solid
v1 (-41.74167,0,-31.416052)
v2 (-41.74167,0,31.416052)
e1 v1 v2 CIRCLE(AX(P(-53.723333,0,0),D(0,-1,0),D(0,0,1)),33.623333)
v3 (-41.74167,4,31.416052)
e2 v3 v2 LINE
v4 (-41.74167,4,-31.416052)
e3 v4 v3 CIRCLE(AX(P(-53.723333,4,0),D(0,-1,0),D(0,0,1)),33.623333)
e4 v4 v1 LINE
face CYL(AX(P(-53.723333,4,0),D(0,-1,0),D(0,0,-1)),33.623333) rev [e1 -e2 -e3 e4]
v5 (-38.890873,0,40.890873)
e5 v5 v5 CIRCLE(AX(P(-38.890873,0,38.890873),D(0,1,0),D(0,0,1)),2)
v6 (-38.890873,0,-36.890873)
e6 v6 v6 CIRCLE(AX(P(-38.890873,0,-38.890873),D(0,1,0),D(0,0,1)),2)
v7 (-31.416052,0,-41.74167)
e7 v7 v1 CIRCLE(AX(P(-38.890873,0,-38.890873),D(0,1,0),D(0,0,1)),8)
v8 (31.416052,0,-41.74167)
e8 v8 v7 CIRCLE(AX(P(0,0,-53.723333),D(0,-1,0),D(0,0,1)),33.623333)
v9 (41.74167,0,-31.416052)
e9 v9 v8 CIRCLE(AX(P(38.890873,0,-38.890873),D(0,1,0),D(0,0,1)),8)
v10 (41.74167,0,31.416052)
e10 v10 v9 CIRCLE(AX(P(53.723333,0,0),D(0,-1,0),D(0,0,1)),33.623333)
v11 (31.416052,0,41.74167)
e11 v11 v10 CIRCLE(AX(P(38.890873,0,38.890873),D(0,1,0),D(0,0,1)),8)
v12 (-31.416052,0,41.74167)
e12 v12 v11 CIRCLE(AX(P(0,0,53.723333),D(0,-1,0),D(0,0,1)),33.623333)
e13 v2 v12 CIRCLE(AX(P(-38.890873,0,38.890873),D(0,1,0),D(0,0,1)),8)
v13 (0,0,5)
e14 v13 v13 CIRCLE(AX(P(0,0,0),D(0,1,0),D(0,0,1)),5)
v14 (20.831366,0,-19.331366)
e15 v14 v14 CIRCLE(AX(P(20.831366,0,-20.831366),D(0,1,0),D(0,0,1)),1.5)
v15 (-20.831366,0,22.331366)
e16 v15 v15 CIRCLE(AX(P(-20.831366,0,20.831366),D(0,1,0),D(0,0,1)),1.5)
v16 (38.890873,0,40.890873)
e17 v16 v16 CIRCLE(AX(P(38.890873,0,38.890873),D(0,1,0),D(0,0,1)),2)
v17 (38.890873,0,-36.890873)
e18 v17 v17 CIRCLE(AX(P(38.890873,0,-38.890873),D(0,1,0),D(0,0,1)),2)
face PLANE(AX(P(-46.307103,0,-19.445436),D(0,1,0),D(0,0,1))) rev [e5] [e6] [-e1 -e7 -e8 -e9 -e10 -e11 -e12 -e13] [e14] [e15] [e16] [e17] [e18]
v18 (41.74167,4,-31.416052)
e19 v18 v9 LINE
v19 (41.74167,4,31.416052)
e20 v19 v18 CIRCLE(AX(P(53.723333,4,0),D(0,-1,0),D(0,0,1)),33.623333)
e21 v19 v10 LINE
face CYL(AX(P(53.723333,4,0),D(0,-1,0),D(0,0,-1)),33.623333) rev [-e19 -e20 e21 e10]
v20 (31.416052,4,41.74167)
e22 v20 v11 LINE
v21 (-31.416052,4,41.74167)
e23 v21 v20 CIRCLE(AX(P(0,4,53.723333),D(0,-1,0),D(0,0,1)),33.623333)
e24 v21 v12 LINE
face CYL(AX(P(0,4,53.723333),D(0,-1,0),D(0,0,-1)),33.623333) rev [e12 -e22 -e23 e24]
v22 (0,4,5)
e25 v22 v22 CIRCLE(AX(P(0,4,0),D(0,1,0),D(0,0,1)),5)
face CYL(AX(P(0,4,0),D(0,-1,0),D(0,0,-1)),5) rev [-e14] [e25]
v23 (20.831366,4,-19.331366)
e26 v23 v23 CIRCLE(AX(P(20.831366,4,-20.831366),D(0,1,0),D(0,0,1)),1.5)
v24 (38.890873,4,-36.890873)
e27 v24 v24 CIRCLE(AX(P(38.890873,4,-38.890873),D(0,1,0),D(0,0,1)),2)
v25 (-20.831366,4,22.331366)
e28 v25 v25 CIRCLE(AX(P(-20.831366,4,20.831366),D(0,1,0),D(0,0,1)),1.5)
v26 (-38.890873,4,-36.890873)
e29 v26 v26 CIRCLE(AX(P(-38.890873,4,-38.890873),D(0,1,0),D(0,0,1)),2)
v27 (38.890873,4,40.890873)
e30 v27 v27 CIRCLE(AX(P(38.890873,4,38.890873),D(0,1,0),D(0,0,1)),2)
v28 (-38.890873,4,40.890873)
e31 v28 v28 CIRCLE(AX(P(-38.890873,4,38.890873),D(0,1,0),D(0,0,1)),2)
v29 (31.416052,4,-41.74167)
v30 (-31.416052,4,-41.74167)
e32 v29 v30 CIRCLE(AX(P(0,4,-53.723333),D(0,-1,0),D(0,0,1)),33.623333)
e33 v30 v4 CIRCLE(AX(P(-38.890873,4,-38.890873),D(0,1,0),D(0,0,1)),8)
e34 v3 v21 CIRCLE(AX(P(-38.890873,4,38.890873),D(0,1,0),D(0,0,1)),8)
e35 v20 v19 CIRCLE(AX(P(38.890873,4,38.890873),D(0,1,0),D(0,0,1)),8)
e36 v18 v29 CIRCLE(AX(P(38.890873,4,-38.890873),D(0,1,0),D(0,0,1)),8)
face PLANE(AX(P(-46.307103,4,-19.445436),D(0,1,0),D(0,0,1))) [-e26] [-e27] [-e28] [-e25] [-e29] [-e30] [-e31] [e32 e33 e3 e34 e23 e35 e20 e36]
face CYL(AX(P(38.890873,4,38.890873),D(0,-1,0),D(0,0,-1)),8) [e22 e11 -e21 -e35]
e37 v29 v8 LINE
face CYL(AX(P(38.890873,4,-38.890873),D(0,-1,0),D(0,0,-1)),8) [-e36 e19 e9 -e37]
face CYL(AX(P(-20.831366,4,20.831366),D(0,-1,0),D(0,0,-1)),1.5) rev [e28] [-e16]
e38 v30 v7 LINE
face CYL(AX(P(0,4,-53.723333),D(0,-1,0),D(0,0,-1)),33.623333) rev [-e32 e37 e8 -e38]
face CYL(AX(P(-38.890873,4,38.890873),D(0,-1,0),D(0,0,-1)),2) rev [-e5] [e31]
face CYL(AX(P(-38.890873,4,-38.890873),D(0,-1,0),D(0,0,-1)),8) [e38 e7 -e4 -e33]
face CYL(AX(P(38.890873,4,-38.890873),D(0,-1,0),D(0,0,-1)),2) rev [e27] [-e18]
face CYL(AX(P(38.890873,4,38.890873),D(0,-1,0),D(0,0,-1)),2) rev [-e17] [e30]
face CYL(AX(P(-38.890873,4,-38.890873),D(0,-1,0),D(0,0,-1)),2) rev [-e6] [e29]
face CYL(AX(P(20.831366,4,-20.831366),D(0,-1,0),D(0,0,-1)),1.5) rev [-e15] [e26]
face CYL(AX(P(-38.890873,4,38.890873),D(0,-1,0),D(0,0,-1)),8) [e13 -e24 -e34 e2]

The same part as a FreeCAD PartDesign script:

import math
import FreeCAD as App
import Part
import Sketcher
Q = App.Units.Quantity

doc = App.newDocument("Part")
body = doc.addObject("PartDesign::Body", "Body")

# Sketch on XZ plane
sketch1 = doc.addObject("Sketcher::SketchObject", "Sketch")
body.addObject(sketch1)
sketch1.AttachmentSupport = (doc.XZ_Plane, [""])
sketch1.MapMode = "FlatFace"
sketch1.addGeometry(Part.ArcOfCircle(Part.Circle(App.Vector(0, -53.7, 0), App.Vector(0, 0, 1), 33.6), math.radians(21), math.radians(159)), False)
sketch1.addGeometry(Part.ArcOfCircle(Part.Circle(App.Vector(-38.9, -38.9, 0), App.Vector(0, 0, 1), 8), math.radians(111), math.radians(339)), False)
sketch1.addGeometry(Part.ArcOfCircle(Part.Circle(App.Vector(-53.7, 0, 0), App.Vector(0, 0, 1), 33.6), math.radians(-69), math.radians(69)), False)
sketch1.addGeometry(Part.ArcOfCircle(Part.Circle(App.Vector(-38.9, 38.9, 0), App.Vector(0, 0, 1), 8), math.radians(21), math.radians(249)), False)
sketch1.addGeometry(Part.ArcOfCircle(Part.Circle(App.Vector(0, 53.7, 0), App.Vector(0, 0, 1), 33.6), math.radians(-159), math.radians(-21)), False)
sketch1.addGeometry(Part.ArcOfCircle(Part.Circle(App.Vector(38.9, 38.9, 0), App.Vector(0, 0, 1), 8), math.radians(-69), math.radians(159)), False)
sketch1.addGeometry(Part.ArcOfCircle(Part.Circle(App.Vector(53.7, 0, 0), App.Vector(0, 0, 1), 33.6), math.radians(111), math.radians(249)), False)
sketch1.addGeometry(Part.ArcOfCircle(Part.Circle(App.Vector(38.9, -38.9, 0), App.Vector(0, 0, 1), 8), math.radians(-159), math.radians(69)), False)
sketch1.addGeometry(Part.Circle(App.Vector(38.9, 38.9, 0), App.Vector(0, 0, 1), 2), False)
sketch1.addGeometry(Part.Circle(App.Vector(-38.9, 38.9, 0), App.Vector(0, 0, 1), 2), False)
sketch1.addGeometry(Part.Circle(App.Vector(-20.8, 20.8, 0), App.Vector(0, 0, 1), 1.5), False)
sketch1.addGeometry(Part.Circle(App.Vector(20.8, -20.8, 0), App.Vector(0, 0, 1), 1.5), False)
sketch1.addGeometry(Part.Circle(App.Vector(38.9, -38.9, 0), App.Vector(0, 0, 1), 2), False)
sketch1.addGeometry(Part.Circle(App.Vector(0, 0, 0), App.Vector(0, 0, 1), 5), False)
sketch1.addGeometry(Part.Circle(App.Vector(-38.9, -38.9, 0), App.Vector(0, 0, 1), 2), False)
sketch1.addConstraint(Sketcher.Constraint("Tangent", 0, 2, 1, 2))
sketch1.addConstraint(Sketcher.Constraint("Tangent", 1, 1, 2, 1))
sketch1.addConstraint(Sketcher.Constraint("Tangent", 2, 2, 3, 2))
sketch1.addConstraint(Sketcher.Constraint("Tangent", 3, 1, 4, 1))
sketch1.addConstraint(Sketcher.Constraint("Tangent", 4, 2, 5, 2))
sketch1.addConstraint(Sketcher.Constraint("Tangent", 5, 1, 6, 1))
sketch1.addConstraint(Sketcher.Constraint("Tangent", 6, 2, 7, 2))
sketch1.addConstraint(Sketcher.Constraint("Tangent", 7, 1, 0, 1))
sketch1.addConstraint(Sketcher.Constraint("Coincident", 13, 3, -1, 1))
sketch1.addConstraint(Sketcher.Constraint("Coincident", 8, 3, 5, 3))
sketch1.addConstraint(Sketcher.Constraint("Coincident", 9, 3, 3, 3))
sketch1.addConstraint(Sketcher.Constraint("Coincident", 12, 3, 7, 3))
sketch1.addConstraint(Sketcher.Constraint("Coincident", 14, 3, 1, 3))
sketch1.addConstraint(Sketcher.Constraint("Equal", 0, 2))
sketch1.addConstraint(Sketcher.Constraint("Equal", 1, 3))
sketch1.addConstraint(Sketcher.Constraint("Equal", 2, 4))
sketch1.addConstraint(Sketcher.Constraint("Equal", 3, 5))
sketch1.addConstraint(Sketcher.Constraint("Equal", 4, 6))
sketch1.addConstraint(Sketcher.Constraint("Equal", 5, 7))
sketch1.addConstraint(Sketcher.Constraint("Equal", 8, 9))
sketch1.addConstraint(Sketcher.Constraint("Equal", 10, 11))
sketch1.addConstraint(Sketcher.Constraint("Equal", 9, 12))
sketch1.addConstraint(Sketcher.Constraint("Equal", 12, 14))
sketch1.addConstraint(Sketcher.Constraint("Symmetric", 0, 3, 4, 3, -1, 1))
sketch1.addConstraint(Sketcher.Constraint("Symmetric", 2, 3, 6, 3, -1, 1))
sketch1.addConstraint(Sketcher.Constraint("Symmetric", 10, 3, 11, 3, -1, 1))
sketch1.addConstraint(Sketcher.Constraint("Symmetric", 3, 3, 5, 3, -2))
sketch1.addConstraint(Sketcher.Constraint("Diameter", 8, Q("4 mm")))
sketch1.addConstraint(Sketcher.Constraint("Diameter", 10, Q("3 mm")))
sketch1.addConstraint(Sketcher.Constraint("Diameter", 13, Q("10 mm")))
sketch1.addConstraint(Sketcher.Constraint("Radius", 1, Q("8 mm")))
sketch1.addConstraint(Sketcher.Constraint("Radius", 0, Q("33.623333 mm")))
sketch1.addConstraint(Sketcher.Constraint("DistanceX", 0, 2, -1, 1, Q("31.416052 mm")))
sketch1.addConstraint(Sketcher.Constraint("DistanceY", 0, 2, -1, 1, Q("41.74167 mm")))
sketch1.addConstraint(Sketcher.Constraint("DistanceX", 10, 3, 8, 3, Q("59.722239 mm")))
sketch1.addConstraint(Sketcher.Constraint("DistanceY", 11, 3, 10, 3, Q("41.662732 mm")))
pad1 = doc.addObject("PartDesign::Pad", "Pad")
body.addObject(pad1)
pad1.Profile = sketch1
pad1.Length = 4
pad1.Reversed = True

doc.recompute()
